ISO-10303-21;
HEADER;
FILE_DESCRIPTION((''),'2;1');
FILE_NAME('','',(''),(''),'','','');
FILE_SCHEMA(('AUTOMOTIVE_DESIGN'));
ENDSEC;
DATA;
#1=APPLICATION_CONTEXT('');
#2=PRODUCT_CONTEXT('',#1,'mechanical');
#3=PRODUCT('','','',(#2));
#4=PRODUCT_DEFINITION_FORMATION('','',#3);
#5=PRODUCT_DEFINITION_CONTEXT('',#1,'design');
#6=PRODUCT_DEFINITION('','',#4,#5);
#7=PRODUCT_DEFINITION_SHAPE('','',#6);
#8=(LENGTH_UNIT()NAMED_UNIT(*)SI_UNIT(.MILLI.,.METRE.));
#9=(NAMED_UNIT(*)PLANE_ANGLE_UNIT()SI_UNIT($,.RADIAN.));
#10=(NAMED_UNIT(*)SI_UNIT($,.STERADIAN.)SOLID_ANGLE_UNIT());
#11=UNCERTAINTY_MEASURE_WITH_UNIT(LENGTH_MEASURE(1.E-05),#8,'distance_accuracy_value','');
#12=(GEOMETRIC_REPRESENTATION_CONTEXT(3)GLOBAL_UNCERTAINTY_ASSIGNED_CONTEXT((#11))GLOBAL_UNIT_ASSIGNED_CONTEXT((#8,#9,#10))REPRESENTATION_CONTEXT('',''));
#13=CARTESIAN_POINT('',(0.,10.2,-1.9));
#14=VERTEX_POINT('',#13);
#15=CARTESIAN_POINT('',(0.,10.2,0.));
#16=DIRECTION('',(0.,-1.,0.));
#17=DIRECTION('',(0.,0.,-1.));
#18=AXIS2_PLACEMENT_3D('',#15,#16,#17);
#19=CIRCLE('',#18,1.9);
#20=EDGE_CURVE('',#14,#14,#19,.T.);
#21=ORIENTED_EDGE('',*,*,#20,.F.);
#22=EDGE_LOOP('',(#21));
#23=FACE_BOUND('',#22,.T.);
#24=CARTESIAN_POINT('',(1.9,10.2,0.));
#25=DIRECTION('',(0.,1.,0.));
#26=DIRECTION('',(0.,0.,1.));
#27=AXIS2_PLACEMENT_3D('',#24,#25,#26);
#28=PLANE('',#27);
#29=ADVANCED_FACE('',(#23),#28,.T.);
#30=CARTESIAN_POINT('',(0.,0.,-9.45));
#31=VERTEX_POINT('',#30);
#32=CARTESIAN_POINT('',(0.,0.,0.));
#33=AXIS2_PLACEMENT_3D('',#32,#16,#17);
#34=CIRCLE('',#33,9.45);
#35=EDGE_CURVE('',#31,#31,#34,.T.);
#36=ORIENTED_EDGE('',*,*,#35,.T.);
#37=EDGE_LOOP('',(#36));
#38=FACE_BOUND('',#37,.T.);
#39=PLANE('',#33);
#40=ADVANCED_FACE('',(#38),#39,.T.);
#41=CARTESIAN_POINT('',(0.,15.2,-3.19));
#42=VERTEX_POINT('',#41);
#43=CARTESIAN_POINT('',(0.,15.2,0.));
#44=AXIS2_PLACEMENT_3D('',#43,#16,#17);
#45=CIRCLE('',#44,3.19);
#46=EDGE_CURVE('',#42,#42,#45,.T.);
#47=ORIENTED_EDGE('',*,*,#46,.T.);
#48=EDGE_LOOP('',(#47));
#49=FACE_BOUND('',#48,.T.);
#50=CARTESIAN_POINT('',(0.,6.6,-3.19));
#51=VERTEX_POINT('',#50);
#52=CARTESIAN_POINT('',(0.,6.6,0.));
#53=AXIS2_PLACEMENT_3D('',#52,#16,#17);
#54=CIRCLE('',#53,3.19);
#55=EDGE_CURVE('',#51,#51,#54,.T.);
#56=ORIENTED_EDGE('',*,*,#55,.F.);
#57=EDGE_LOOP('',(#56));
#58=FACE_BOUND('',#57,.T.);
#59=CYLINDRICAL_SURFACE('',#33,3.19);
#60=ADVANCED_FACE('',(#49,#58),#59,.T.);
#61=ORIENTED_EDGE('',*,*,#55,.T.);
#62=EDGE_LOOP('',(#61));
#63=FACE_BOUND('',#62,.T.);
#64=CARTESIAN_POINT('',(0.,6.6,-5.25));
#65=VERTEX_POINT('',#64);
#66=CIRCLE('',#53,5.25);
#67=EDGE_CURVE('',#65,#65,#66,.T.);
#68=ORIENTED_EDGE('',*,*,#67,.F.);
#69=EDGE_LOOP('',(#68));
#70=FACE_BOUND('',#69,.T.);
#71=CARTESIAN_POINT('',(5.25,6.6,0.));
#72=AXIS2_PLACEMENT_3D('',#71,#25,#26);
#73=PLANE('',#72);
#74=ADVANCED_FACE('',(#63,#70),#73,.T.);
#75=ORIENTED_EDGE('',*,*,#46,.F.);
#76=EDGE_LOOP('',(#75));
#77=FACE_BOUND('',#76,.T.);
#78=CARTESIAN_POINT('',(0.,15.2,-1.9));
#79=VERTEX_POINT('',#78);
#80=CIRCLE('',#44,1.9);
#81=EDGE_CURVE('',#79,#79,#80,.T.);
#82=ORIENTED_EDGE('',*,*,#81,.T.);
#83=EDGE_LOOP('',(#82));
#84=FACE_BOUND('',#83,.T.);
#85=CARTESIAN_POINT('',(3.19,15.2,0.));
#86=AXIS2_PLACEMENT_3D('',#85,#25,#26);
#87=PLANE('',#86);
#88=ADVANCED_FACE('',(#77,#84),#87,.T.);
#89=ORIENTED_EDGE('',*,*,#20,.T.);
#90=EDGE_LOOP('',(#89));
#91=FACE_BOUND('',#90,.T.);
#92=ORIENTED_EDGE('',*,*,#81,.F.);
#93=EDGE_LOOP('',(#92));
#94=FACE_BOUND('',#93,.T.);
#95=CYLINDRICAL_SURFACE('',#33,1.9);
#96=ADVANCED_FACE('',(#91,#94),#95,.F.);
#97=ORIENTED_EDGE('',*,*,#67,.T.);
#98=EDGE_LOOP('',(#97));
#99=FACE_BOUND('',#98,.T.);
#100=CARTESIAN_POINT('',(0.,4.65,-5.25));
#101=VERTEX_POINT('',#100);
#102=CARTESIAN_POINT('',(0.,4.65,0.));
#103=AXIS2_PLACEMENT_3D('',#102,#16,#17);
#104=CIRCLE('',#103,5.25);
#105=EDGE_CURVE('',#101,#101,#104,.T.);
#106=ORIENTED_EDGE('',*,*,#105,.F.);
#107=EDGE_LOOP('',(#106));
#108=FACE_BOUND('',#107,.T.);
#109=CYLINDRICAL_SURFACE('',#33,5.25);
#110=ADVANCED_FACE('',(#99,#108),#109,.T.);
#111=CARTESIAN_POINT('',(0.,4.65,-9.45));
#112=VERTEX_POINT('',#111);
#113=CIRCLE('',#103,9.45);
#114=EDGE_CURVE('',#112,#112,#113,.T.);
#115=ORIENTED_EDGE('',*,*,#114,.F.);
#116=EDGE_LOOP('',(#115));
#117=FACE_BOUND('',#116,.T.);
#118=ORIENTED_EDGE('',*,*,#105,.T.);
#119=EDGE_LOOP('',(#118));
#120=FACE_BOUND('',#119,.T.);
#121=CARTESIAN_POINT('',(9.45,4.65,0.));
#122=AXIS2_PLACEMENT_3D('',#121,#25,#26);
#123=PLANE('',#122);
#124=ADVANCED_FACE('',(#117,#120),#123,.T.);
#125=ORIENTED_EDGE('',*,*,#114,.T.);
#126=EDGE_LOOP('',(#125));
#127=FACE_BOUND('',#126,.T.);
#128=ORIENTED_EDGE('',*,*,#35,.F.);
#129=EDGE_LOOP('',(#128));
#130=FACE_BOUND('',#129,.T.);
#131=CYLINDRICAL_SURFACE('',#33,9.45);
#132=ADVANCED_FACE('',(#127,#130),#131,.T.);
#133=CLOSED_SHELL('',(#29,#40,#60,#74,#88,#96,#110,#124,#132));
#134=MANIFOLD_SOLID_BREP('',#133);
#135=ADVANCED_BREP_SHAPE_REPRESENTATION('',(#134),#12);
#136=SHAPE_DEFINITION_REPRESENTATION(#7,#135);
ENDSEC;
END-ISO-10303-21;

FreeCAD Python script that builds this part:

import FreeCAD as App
import Part
import Sketcher
from FreeCAD import Vector

doc = App.newDocument("Part")
params = doc.addObject("Spreadsheet::Sheet", "Params")
for row, (alias, value) in enumerate([
    ("sketch1_height", "5 mm"),
    ("sketch1_width", "4.2 mm"),
    ("sketch1_width2", "1.9 mm"),
    ("sketch1_height2", "8.6 mm"),
    ("sketch1_height3", "10.2 mm"),
    ("revolution_angle", "360 deg"),
], start=1):
    params.set(f"A{row}", alias)
    params.set(f"B{row}", "=" + value)
    params.setAlias(f"B{row}", alias)

body = doc.addObject("PartDesign::Body", "Body")

sketch1 = doc.addObject("Sketcher::SketchObject", "Sketch")
body.addObject(sketch1)
sketch1.AttachmentSupport = (doc.XY_Plane, [""])
sketch1.MapMode = "FlatFace"
sketch1.addGeometry([
    Part.LineSegment(Vector(0, 0, 0), Vector(9.4, 0, 0)),
    Part.LineSegment(Vector(9.4, 0, 0), Vector(9.4, 4.7, 0)),
    Part.LineSegment(Vector(9.4, 4.7, 0), Vector(5.2, 4.7, 0)),
    Part.LineSegment(Vector(5.2, 4.7, 0), Vector(5.2, 6.6, 0)),
    Part.LineSegment(Vector(5.2, 6.6, 0), Vector(3.2, 6.6, 0)),
    Part.LineSegment(Vector(3.2, 6.6, 0), Vector(3.2, 15.2, 0)),
    Part.LineSegment(Vector(3.2, 15.2, 0), Vector(1.9, 15.2, 0)),
    Part.LineSegment(Vector(1.9, 15.2, 0), Vector(1.9, 10.2, 0)),
    Part.LineSegment(Vector(1.9, 10.2, 0), Vector(0, 10.2, 0)),
    Part.LineSegment(Vector(0, 10.2, 0), Vector(0, 0, 0)),
], False)
sketch1.addConstraint([
    Sketcher.Constraint("Coincident", 0, 2, 1, 1),
    Sketcher.Constraint("Coincident", 1, 2, 2, 1),
    Sketcher.Constraint("Coincident", 2, 2, 3, 1),
    Sketcher.Constraint("Coincident", 3, 2, 4, 1),
    Sketcher.Constraint("Coincident", 4, 2, 5, 1),
    Sketcher.Constraint("Coincident", 5, 2, 6, 1),
    Sketcher.Constraint("Coincident", 6, 2, 7, 1),
    Sketcher.Constraint("Coincident", 7, 2, 8, 1),
    Sketcher.Constraint("Coincident", 8, 2, 9, 1),
    Sketcher.Constraint("Coincident", 9, 2, 0, 1),
    Sketcher.Constraint("Horizontal", 0),
    Sketcher.Constraint("Vertical", 1),
    Sketcher.Constraint("Horizontal", 2),
    Sketcher.Constraint("Vertical", 3),
    Sketcher.Constraint("Horizontal", 4),
    Sketcher.Constraint("Vertical", 5),
    Sketcher.Constraint("Horizontal", 6),
    Sketcher.Constraint("Vertical", 7),
    Sketcher.Constraint("Horizontal", 8),
    Sketcher.Constraint("Vertical", 9),
    Sketcher.Constraint("Coincident", 9, 2, -1, 1),
    Sketcher.Constraint("DistanceY", 7, 2, 7, 1, 5.0),
    Sketcher.Constraint("DistanceX", 2, 2, 2, 1, 4.2),
    Sketcher.Constraint("DistanceX", 8, 2, 8, 1, 1.9),
    Sketcher.Constraint("DistanceY", 5, 1, 5, 2, 8.6),
    Sketcher.Constraint("DistanceY", 9, 2, 9, 1, 10.2),
    Sketcher.Constraint("DistanceX", 0, 1, 0, 2, 9.45),
    Sketcher.Constraint("DistanceX", 4, 2, 4, 1, 2.06),
    Sketcher.Constraint("DistanceY", 1, 1, 1, 2, 4.65),
])
sketch1.setExpression("Constraints[21]", "Params.sketch1_height")
sketch1.setExpression("Constraints[22]", "Params.sketch1_width")
sketch1.setExpression("Constraints[23]", "Params.sketch1_width2")
sketch1.setExpression("Constraints[24]", "Params.sketch1_height2")
sketch1.setExpression("Constraints[25]", "Params.sketch1_height3")
revolution = doc.addObject("PartDesign::Revolution", "Revolution")
body.addObject(revolution)
revolution.Profile = sketch1
revolution.ReferenceAxis = (sketch1, ["V_Axis"])
revolution.setExpression("Angle", "Params.revolution_angle")

doc.recompute()
